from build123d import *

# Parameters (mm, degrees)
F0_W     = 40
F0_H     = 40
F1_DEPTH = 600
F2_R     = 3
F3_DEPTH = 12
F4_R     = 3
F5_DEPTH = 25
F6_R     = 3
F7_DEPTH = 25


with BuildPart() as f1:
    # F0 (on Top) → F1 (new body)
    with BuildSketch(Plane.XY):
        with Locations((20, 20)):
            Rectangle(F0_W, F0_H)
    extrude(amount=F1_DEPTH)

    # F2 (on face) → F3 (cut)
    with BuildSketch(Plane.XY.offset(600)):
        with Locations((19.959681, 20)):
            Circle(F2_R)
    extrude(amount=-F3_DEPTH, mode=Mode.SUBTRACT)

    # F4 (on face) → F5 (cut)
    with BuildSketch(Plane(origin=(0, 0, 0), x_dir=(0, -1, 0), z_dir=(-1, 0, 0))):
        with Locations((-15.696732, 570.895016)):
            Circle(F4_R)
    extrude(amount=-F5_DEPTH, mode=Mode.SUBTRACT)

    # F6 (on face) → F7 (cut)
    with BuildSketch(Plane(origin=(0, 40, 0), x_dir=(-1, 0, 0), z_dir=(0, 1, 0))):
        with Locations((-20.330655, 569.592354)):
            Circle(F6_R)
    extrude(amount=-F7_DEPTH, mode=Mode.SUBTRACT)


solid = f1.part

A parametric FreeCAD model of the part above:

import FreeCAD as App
import Part
import Sketcher

V = App.Vector

doc = App.newDocument("Part")
body = doc.addObject("PartDesign::Body", "Body")

sketch1 = body.newObject("Sketcher::SketchObject", "Sketch")
sketch1.AttachmentSupport = (doc.getObject("XY_Plane"), [""])
sketch1.MapMode = "FlatFace"
sketch1.addGeometry(Part.LineSegment(V(0, 40, 0), V(0, 0, 0)), False)
sketch1.addGeometry(Part.LineSegment(V(0, 0, 0), V(40, 0, 0)), False)
sketch1.addGeometry(Part.LineSegment(V(40, 0, 0), V(40, 40, 0)), False)
sketch1.addGeometry(Part.LineSegment(V(40, 40, 0), V(0, 40, 0)), False)
sketch1.addConstraint(Sketcher.Constraint("Coincident", 0, 2, 1, 1))
sketch1.addConstraint(Sketcher.Constraint("Coincident", 1, 2, 2, 1))
sketch1.addConstraint(Sketcher.Constraint("Coincident", 2, 2, 3, 1))
sketch1.addConstraint(Sketcher.Constraint("Coincident", 3, 2, 0, 1))
sketch1.addConstraint(Sketcher.Constraint("Vertical", 0))
sketch1.addConstraint(Sketcher.Constraint("Horizontal", 1))
sketch1.addConstraint(Sketcher.Constraint("Vertical", 2))
sketch1.addConstraint(Sketcher.Constraint("Horizontal", 3))
sketch1.addConstraint(Sketcher.Constraint("Coincident", 0, 2, -1, 1))
sketch1.addConstraint(Sketcher.Constraint("Equal", 3, 0))
sketch1.addConstraint(Sketcher.Constraint("DistanceX", 1, 1, 1, 2, 40.0))
pad1 = body.newObject("PartDesign::Pad", "Pad")
pad1.Profile = sketch1
pad1.Length = 600

sketch2 = body.newObject("Sketcher::SketchObject", "Sketch001")
sketch2.AttachmentSupport = (doc.getObject("XY_Plane"), [""])
sketch2.MapMode = "FlatFace"
sketch2.AttachmentOffset = App.Placement(V(0, 0, 600), App.Rotation())
sketch2.addGeometry(Part.Circle(V(20, 20, 0), V(0, 0, 1), 3), False)
sketch2.addConstraint(Sketcher.Constraint("Diameter", 0, 6.0))
sketch2.addConstraint(Sketcher.Constraint("DistanceY", -1, 1, 0, 3, 20.0))
sketch2.addConstraint(Sketcher.Constraint("DistanceX", -1, 1, 0, 3, 19.959681))
pocket1 = body.newObject("PartDesign::Pocket", "Pocket")
pocket1.Profile = sketch2
pocket1.Length = 12

sketch3 = body.newObject("Sketcher::SketchObject", "Sketch002")
sketch3.AttachmentSupport = (doc.getObject("YZ_Plane"), [""])
sketch3.MapMode = "FlatFace"
sketch3.addGeometry(Part.Circle(V(15.7, 570.9, 0), V(0, 0, 1), 3), False)
sketch3.addConstraint(Sketcher.Constraint("Diameter", 0, 6.0))
sketch3.addConstraint(Sketcher.Constraint("DistanceX", -1, 1, 0, 3, 15.696732))
sketch3.addConstraint(Sketcher.Constraint("DistanceY", -1, 1, 0, 3, 570.895016))
pocket2 = body.newObject("PartDesign::Pocket", "Pocket001")
pocket2.Profile = sketch3
pocket2.Length = 25
pocket2.Reversed = True

sketch4 = body.newObject("Sketcher::SketchObject", "Sketch003")
sketch4.AttachmentSupport = (doc.getObject("XZ_Plane"), [""])
sketch4.MapMode = "FlatFace"
sketch4.AttachmentOffset = App.Placement(V(0, 0, -40), App.Rotation())
sketch4.addGeometry(Part.Circle(V(20.3, 569.6, 0), V(0, 0, 1), 3), False)
sketch4.addConstraint(Sketcher.Constraint("Diameter", 0, 6.0))
sketch4.addConstraint(Sketcher.Constraint("DistanceX", -1, 1, 0, 3, 20.330655))
sketch4.addConstraint(Sketcher.Constraint("DistanceY", -1, 1, 0, 3, 569.592354))
pocket3 = body.newObject("PartDesign::Pocket", "Pocket002")
pocket3.Profile = sketch4
pocket3.Length = 25
pocket3.Reversed = True

doc.recompute()
